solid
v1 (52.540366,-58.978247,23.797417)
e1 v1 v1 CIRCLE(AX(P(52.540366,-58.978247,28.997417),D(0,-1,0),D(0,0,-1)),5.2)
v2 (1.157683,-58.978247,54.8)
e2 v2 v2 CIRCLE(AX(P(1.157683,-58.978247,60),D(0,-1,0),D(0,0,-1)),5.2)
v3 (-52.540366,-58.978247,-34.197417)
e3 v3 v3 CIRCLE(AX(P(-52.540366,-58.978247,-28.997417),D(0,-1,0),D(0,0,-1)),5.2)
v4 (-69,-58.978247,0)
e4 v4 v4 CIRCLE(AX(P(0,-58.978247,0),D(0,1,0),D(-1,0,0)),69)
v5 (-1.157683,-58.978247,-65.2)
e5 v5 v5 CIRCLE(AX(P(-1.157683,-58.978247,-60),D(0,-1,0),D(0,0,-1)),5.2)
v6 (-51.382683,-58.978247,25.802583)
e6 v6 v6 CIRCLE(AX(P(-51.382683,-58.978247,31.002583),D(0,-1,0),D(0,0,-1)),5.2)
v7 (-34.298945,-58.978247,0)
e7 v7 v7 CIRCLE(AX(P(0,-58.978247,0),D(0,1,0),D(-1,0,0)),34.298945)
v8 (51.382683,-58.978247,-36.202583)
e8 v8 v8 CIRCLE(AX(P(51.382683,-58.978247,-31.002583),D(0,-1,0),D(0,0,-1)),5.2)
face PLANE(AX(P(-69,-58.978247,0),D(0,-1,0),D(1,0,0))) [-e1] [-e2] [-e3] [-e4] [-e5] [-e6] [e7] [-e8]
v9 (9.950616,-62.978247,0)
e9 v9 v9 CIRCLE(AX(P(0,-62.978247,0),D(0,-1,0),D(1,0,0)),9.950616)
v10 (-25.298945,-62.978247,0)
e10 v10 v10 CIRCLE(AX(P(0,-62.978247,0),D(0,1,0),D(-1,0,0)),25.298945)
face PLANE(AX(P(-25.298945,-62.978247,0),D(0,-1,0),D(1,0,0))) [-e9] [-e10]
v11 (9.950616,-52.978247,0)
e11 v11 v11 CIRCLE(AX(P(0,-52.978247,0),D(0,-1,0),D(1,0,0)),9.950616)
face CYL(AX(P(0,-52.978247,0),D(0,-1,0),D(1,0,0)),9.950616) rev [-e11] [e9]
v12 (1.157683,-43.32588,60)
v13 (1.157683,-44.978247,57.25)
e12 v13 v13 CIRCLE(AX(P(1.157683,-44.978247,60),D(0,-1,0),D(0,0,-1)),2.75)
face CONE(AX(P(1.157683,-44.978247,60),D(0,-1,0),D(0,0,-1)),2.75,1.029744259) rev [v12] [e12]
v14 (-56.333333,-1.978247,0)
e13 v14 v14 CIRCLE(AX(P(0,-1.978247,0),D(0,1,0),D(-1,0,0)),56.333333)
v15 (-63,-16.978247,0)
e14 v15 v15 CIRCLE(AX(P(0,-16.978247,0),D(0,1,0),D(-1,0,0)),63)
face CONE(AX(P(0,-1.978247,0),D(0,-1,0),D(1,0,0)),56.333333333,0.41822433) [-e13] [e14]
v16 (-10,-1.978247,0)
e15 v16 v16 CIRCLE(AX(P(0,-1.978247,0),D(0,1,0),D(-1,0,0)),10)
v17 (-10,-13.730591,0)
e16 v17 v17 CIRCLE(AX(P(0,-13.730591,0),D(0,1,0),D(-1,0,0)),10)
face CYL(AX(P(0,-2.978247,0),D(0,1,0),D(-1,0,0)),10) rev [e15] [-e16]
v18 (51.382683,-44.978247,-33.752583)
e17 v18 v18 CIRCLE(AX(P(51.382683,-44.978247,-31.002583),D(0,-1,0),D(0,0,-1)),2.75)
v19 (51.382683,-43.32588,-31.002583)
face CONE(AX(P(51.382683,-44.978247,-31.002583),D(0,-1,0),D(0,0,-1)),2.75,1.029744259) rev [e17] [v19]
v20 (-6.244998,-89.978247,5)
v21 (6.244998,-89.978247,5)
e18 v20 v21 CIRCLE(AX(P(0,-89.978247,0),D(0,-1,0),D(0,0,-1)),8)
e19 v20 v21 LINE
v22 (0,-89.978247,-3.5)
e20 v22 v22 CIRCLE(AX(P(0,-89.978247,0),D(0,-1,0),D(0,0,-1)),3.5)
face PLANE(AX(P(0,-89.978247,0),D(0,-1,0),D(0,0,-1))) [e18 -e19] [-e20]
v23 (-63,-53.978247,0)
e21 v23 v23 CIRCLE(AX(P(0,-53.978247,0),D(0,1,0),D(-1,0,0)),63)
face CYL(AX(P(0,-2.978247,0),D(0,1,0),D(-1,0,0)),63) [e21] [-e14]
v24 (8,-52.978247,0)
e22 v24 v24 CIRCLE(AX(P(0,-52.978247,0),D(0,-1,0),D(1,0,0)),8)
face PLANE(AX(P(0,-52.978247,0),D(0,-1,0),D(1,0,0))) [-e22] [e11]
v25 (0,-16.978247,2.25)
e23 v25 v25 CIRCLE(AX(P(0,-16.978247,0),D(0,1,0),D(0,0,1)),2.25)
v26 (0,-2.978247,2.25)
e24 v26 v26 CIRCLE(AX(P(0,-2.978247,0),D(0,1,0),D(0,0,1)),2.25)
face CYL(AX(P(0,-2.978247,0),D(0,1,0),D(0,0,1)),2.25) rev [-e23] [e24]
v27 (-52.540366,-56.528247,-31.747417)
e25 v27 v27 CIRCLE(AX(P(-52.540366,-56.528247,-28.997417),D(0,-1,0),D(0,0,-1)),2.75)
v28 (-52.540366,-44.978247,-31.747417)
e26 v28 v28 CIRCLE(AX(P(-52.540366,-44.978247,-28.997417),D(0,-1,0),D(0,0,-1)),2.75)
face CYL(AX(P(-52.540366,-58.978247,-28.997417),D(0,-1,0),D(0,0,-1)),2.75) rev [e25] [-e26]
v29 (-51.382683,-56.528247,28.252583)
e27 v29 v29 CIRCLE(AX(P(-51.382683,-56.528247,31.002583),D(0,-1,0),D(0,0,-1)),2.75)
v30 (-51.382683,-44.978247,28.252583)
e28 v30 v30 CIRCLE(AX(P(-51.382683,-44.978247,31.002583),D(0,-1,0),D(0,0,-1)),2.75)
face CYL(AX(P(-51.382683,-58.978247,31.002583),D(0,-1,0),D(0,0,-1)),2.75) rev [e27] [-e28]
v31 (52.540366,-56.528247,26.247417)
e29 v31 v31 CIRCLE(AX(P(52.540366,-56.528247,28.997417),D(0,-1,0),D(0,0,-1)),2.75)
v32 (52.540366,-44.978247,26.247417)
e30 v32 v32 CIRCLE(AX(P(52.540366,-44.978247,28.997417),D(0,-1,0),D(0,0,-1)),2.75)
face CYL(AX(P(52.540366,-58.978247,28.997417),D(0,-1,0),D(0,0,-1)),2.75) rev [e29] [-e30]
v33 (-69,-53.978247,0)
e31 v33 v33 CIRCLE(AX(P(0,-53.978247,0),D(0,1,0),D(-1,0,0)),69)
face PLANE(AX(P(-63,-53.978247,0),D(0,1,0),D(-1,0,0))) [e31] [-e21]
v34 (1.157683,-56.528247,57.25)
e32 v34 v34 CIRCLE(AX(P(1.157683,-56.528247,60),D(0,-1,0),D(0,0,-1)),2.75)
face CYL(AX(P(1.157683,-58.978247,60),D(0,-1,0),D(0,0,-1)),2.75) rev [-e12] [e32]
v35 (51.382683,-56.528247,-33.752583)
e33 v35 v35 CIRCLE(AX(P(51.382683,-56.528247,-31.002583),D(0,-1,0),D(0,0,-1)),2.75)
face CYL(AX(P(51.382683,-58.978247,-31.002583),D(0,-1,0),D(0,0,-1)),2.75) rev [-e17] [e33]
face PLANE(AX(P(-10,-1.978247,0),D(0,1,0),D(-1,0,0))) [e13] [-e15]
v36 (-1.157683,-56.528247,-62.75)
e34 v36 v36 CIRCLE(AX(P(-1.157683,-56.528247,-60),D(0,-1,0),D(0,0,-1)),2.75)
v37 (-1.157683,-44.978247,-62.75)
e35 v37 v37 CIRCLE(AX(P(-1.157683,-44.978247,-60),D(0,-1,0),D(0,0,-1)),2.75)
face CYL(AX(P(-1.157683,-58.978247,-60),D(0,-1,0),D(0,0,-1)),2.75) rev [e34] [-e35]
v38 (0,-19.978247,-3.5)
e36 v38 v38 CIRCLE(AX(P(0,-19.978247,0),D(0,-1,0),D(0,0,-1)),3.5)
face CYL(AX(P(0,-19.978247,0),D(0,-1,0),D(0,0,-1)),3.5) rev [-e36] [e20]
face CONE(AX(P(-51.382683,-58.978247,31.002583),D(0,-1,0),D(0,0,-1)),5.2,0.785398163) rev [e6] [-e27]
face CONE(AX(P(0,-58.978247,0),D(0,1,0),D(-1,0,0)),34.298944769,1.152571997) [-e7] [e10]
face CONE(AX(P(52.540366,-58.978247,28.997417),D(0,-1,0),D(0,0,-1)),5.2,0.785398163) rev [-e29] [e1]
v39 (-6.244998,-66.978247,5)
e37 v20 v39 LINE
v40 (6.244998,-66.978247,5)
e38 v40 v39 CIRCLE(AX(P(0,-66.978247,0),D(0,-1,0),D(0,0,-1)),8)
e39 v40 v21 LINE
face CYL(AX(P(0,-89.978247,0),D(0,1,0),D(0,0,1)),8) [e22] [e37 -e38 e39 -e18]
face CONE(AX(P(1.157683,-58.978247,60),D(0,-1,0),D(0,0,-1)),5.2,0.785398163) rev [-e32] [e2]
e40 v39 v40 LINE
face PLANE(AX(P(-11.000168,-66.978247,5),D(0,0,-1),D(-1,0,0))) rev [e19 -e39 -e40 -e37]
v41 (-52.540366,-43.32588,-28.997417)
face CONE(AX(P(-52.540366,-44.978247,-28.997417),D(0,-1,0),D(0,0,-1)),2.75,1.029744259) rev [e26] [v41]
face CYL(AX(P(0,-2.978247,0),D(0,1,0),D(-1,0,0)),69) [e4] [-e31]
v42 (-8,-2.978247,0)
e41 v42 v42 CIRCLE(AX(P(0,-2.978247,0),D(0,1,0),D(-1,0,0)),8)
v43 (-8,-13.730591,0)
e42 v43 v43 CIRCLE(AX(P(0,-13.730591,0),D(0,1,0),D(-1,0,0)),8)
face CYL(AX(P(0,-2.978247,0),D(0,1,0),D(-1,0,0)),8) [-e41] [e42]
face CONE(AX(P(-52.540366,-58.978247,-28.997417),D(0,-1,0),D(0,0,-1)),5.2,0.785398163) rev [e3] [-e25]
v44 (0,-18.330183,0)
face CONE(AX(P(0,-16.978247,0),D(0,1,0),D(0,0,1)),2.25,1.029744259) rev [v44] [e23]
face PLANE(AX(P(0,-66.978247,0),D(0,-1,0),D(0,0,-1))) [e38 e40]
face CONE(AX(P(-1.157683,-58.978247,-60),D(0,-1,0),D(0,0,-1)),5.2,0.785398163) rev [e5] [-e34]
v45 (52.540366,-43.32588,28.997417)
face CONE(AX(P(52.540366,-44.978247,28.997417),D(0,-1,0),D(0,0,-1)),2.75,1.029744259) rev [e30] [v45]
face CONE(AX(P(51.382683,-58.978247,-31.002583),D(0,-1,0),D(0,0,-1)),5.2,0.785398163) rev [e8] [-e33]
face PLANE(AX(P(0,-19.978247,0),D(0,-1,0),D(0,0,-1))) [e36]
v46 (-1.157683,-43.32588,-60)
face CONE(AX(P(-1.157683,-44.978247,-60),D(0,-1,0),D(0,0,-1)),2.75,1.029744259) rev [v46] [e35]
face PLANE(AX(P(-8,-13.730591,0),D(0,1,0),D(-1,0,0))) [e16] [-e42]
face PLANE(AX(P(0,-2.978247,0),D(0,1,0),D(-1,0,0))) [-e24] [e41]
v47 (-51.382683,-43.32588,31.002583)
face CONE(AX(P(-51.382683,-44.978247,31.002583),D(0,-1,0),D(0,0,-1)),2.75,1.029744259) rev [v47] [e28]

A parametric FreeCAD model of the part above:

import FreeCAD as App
import Part
import Sketcher
from FreeCAD import Vector
Q = App.Units.Quantity


def add_polygon(sketch, points):
    """Adds a closed chain of lines whose ends are joined by coincident constraints."""
    first, n = sketch.GeometryCount, len(points)
    for a, b in zip(points, points[1:] + points[:1]):
        sketch.addGeometry(Part.LineSegment(App.Vector(*a, 0), App.Vector(*b, 0)), False)
    for i in range(n):
        sketch.addConstraint(Sketcher.Constraint("Coincident", first + i, 2, first + (i + 1) % n, 1))

doc = App.newDocument("Part")
body = doc.addObject("PartDesign::Body", "Body")

# Sketch on XY plane
sketch1 = doc.addObject("Sketcher::SketchObject", "Sketch")
body.addObject(sketch1)
sketch1.AttachmentSupport = (doc.XY_Plane, [""])
sketch1.MapMode = "FlatFace"
add_polygon(sketch1, [(-10, -2), (-56.3, -2), (-63, -17), (-63, -54), (-69, -54), (-69, -59), (-34.3, -59), (-25.3, -63), (0, -63), (0, -3), (-8, -3), (-8, -13.7), (-10, -13.7)])  # lines 0-12
sketch1.addConstraint([
    Sketcher.Constraint("Horizontal", 0),
    Sketcher.Constraint("Vertical", 2),
    Sketcher.Constraint("Horizontal", 3),
    Sketcher.Constraint("Vertical", 4),
    Sketcher.Constraint("Horizontal", 5),
    Sketcher.Constraint("Horizontal", 7),
    Sketcher.Constraint("Vertical", 8),
    Sketcher.Constraint("Horizontal", 9),
    Sketcher.Constraint("Vertical", 10),
    Sketcher.Constraint("Horizontal", 11),
    Sketcher.Constraint("Vertical", 12),
    Sketcher.Constraint("PointOnObject", 7, 2, -2),
    Sketcher.Constraint("Perpendicular", 1, 6),
    Sketcher.Constraint("DistanceX", 3, 2, 3, 1, 6.0),
    Sketcher.Constraint("DistanceX", 9, 2, 9, 1, 8.0),
    Sketcher.Constraint("DistanceX", 11, 2, 11, 1, 2.0),
    Sketcher.Constraint("DistanceY", 2, 2, 2, 1, 37.0),
    Sketcher.Constraint("DistanceY", 4, 2, 4, 1, 5.0),
    Sketcher.Constraint("DistanceY", 8, 1, 8, 2, 60.0),
    Sketcher.Constraint("DistanceX", 1, 2, -1, 1, 63.0),
    Sketcher.Constraint("DistanceY", 1, 2, 0, 2, 15.0),
    Sketcher.Constraint("DistanceX", 5, 2, 6, 2, 9.0),
    Sketcher.Constraint("DistanceY", 6, 2, 5, 2, 4.0),
    Sketcher.Constraint("DistanceX", 5, 1, 5, 2, 34.701055),
    Sketcher.Constraint("DistanceY", 10, 2, 10, 1, 10.752344),
    Sketcher.Constraint("DistanceY", 10, 2, -1, 1, 13.730591),
])
revolution = doc.addObject("PartDesign::Revolution", "Revolution")
body.addObject(revolution)
revolution.Profile = sketch1
revolution.ReferenceAxis = (sketch1, ["V_Axis"])
revolution.Angle = 360

# Sketch on XZ plane
sketch2 = doc.addObject("Sketcher::SketchObject", "Sketch001")
body.addObject(sketch2)
sketch2.AttachmentSupport = (doc.XZ_Plane, [""])
sketch2.MapMode = "FlatFace"
sketch2.AttachmentOffset = App.Placement(Vector(0, 0, 89.978247), App.Rotation())
sketch2.addGeometry(Part.Circle(Vector(0, 0, 0), Vector(0, 0, 1), 8), False)
sketch2.addConstraint([
    Sketcher.Constraint("Coincident", 0, 3, -1, 1),
    Sketcher.Constraint("Diameter", 0, 16.0),
])
pad1 = doc.addObject("PartDesign::Pad", "Pad")
body.addObject(pad1)
pad1.Profile = sketch2
pad1.Length = 27
pad1.Reversed = True

# Sketch on XZ plane
sketch3 = doc.addObject("Sketcher::SketchObject", "Sketch002")
body.addObject(sketch3)
sketch3.AttachmentSupport = (doc.XZ_Plane, [""])
sketch3.MapMode = "FlatFace"
sketch3.AttachmentOffset = App.Placement(Vector(0, 0, 89.978247), App.Rotation())
add_polygon(sketch3, [(-11, 12), (-11, 5), (11, 5), (11, 12)])  # lines 0-3
sketch3.addConstraint([
    Sketcher.Constraint("Vertical", 0),
    Sketcher.Constraint("Horizontal", 1),
    Sketcher.Constraint("Vertical", 2),
    Sketcher.Constraint("Horizontal", 3),
    Sketcher.Constraint("DistanceY", -1, 1, 0, 2, 5.0),
    Sketcher.Constraint("DistanceX", 1, 1, 1, 2, 21.869381),
    Sketcher.Constraint("DistanceY", 0, 2, 0, 1, 6.809628),
    Sketcher.Constraint("DistanceX", 0, 2, -1, 1, 11.000168),
])
pocket1 = doc.addObject("PartDesign::Pocket", "Pocket")
body.addObject(pocket1)
pocket1.Profile = sketch3
pocket1.Length = 23

# Sketch on XZ plane
sketch4 = doc.addObject("Sketcher::SketchObject", "Sketch003")
body.addObject(sketch4)
sketch4.AttachmentSupport = (doc.XZ_Plane, [""])
sketch4.MapMode = "FlatFace"
sketch4.AttachmentOffset = App.Placement(Vector(0, 0, 89.978247), App.Rotation())
sketch4.addGeometry(Part.Circle(Vector(0, 0, 0), Vector(0, 0, 1), 3.5), False)
sketch4.addConstraint([
    Sketcher.Constraint("Coincident", 0, 3, -1, 1),
    Sketcher.Constraint("Diameter", 0, 7.0),
])
pocket2 = doc.addObject("PartDesign::Pocket", "Pocket001")
body.addObject(pocket2)
pocket2.Profile = sketch4
pocket2.Length = 70

# Sketch on YZ plane
sketch5 = doc.addObject("Sketcher::SketchObject", "Sketch004")
body.addObject(sketch5)
sketch5.AttachmentSupport = (doc.YZ_Plane, [""])
sketch5.MapMode = "FlatFace"
sketch5.AttachmentOffset = App.Placement(Vector(0, 0, -1.157683), App.Rotation())
add_polygon(sketch5, [(-43.3, -60), (-59, -60), (-59, -65.2), (-56.5, -62.8), (-45, -62.8)])  # lines 0-4
sketch5.addGeometry(Part.LineSegment(Vector(-59, -60, 0), Vector(-43.3, -60, 0)), True)  # axis
sketch5.addConstraint([
    Sketcher.Constraint("Horizontal", 0),
    Sketcher.Constraint("Vertical", 1),
    Sketcher.Constraint("Horizontal", 3),
    Sketcher.Constraint("Horizontal", 5),
    Sketcher.Constraint("Coincident", 5, 1, 0, 2),
    Sketcher.Constraint("Equal", 0, 5),
    Sketcher.Constraint("Angle", 2, Q("45 deg")),
    Sketcher.Constraint("Angle", 4, Q("59 deg")),
    Sketcher.Constraint("DistanceY", 1, 2, 1, 1, 5.2),
    Sketcher.Constraint("DistanceY", 0, 2, -1, 1, 60.0),
    Sketcher.Constraint("DistanceX", 1, 2, 3, 2, 14.0),
    Sketcher.Constraint("DistanceX", 3, 1, 3, 2, 11.55),
    Sketcher.Constraint("DistanceX", 4, 2, -1, 1, 43.32588),
])
groove = doc.addObject("PartDesign::Groove", "Groove")
body.addObject(groove)
groove.Profile = sketch5
groove.ReferenceAxis = (sketch5, ["Axis0"])
groove.Angle = 360
doc.recompute()

polarpattern = doc.addObject("PartDesign::PolarPattern", "PolarPattern")
body.addObject(polarpattern)
polarpattern.Originals = [groove]
polarpattern.Axis = (doc.Y_Axis, [""])
polarpattern.Angle = 360
polarpattern.Occurrences = 6
body.Tip = polarpattern

# Sketch on XZ plane
sketch6 = doc.addObject("Sketcher::SketchObject", "Sketch005")
body.addObject(sketch6)
sketch6.AttachmentSupport = (doc.XZ_Plane, [""])
sketch6.MapMode = "FlatFace"
sketch6.AttachmentOffset = App.Placement(Vector(0, 0, 2.978247), App.Rotation())
sketch6.addGeometry(Part.Circle(Vector(0, 0, 0), Vector(0, 0, 1), 2.2), False)
sketch6.addConstraint([
    Sketcher.Constraint("Coincident", 0, 3, -1, 1),
    Sketcher.Constraint("Diameter", 0, 4.5),
])
doc.recompute()
hole = doc.addObject("PartDesign::Hole", "Hole")
body.addObject(hole)
hole.Profile = sketch6
hole.ThreadType = "None"
hole.Diameter = 4.5
hole.DepthType = "Dimension"
hole.Depth = 14
hole.DrillPoint = "Angled"
hole.DrillPointAngle = 118
hole.Reversed = True

# Sketch on XZ plane
sketch7 = doc.addObject("Sketcher::SketchObject", "Sketch006")
body.addObject(sketch7)
sketch7.AttachmentSupport = (doc.XZ_Plane, [""])
sketch7.MapMode = "FlatFace"
sketch7.AttachmentOffset = App.Placement(Vector(0, 0, 62.978247), App.Rotation())
sketch7.addGeometry([
    Part.Circle(Vector(0, 0, 0), Vector(0, 0, 1), 10),
    Part.Circle(Vector(0, 0, 0), Vector(0, 0, 1), 8),
], False)
sketch7.addConstraint([
    Sketcher.Constraint("Coincident", 0, 3, -1, 1),
    Sketcher.Constraint("Coincident", 1, 3, -1, 1),
    Sketcher.Constraint("Diameter", 1, 16.0),
    Sketcher.Constraint("Diameter", 0, 19.901232),
])
pocket3 = doc.addObject("PartDesign::Pocket", "Pocket002")
body.addObject(pocket3)
pocket3.Profile = sketch7
pocket3.Length = 10

doc.recompute()
